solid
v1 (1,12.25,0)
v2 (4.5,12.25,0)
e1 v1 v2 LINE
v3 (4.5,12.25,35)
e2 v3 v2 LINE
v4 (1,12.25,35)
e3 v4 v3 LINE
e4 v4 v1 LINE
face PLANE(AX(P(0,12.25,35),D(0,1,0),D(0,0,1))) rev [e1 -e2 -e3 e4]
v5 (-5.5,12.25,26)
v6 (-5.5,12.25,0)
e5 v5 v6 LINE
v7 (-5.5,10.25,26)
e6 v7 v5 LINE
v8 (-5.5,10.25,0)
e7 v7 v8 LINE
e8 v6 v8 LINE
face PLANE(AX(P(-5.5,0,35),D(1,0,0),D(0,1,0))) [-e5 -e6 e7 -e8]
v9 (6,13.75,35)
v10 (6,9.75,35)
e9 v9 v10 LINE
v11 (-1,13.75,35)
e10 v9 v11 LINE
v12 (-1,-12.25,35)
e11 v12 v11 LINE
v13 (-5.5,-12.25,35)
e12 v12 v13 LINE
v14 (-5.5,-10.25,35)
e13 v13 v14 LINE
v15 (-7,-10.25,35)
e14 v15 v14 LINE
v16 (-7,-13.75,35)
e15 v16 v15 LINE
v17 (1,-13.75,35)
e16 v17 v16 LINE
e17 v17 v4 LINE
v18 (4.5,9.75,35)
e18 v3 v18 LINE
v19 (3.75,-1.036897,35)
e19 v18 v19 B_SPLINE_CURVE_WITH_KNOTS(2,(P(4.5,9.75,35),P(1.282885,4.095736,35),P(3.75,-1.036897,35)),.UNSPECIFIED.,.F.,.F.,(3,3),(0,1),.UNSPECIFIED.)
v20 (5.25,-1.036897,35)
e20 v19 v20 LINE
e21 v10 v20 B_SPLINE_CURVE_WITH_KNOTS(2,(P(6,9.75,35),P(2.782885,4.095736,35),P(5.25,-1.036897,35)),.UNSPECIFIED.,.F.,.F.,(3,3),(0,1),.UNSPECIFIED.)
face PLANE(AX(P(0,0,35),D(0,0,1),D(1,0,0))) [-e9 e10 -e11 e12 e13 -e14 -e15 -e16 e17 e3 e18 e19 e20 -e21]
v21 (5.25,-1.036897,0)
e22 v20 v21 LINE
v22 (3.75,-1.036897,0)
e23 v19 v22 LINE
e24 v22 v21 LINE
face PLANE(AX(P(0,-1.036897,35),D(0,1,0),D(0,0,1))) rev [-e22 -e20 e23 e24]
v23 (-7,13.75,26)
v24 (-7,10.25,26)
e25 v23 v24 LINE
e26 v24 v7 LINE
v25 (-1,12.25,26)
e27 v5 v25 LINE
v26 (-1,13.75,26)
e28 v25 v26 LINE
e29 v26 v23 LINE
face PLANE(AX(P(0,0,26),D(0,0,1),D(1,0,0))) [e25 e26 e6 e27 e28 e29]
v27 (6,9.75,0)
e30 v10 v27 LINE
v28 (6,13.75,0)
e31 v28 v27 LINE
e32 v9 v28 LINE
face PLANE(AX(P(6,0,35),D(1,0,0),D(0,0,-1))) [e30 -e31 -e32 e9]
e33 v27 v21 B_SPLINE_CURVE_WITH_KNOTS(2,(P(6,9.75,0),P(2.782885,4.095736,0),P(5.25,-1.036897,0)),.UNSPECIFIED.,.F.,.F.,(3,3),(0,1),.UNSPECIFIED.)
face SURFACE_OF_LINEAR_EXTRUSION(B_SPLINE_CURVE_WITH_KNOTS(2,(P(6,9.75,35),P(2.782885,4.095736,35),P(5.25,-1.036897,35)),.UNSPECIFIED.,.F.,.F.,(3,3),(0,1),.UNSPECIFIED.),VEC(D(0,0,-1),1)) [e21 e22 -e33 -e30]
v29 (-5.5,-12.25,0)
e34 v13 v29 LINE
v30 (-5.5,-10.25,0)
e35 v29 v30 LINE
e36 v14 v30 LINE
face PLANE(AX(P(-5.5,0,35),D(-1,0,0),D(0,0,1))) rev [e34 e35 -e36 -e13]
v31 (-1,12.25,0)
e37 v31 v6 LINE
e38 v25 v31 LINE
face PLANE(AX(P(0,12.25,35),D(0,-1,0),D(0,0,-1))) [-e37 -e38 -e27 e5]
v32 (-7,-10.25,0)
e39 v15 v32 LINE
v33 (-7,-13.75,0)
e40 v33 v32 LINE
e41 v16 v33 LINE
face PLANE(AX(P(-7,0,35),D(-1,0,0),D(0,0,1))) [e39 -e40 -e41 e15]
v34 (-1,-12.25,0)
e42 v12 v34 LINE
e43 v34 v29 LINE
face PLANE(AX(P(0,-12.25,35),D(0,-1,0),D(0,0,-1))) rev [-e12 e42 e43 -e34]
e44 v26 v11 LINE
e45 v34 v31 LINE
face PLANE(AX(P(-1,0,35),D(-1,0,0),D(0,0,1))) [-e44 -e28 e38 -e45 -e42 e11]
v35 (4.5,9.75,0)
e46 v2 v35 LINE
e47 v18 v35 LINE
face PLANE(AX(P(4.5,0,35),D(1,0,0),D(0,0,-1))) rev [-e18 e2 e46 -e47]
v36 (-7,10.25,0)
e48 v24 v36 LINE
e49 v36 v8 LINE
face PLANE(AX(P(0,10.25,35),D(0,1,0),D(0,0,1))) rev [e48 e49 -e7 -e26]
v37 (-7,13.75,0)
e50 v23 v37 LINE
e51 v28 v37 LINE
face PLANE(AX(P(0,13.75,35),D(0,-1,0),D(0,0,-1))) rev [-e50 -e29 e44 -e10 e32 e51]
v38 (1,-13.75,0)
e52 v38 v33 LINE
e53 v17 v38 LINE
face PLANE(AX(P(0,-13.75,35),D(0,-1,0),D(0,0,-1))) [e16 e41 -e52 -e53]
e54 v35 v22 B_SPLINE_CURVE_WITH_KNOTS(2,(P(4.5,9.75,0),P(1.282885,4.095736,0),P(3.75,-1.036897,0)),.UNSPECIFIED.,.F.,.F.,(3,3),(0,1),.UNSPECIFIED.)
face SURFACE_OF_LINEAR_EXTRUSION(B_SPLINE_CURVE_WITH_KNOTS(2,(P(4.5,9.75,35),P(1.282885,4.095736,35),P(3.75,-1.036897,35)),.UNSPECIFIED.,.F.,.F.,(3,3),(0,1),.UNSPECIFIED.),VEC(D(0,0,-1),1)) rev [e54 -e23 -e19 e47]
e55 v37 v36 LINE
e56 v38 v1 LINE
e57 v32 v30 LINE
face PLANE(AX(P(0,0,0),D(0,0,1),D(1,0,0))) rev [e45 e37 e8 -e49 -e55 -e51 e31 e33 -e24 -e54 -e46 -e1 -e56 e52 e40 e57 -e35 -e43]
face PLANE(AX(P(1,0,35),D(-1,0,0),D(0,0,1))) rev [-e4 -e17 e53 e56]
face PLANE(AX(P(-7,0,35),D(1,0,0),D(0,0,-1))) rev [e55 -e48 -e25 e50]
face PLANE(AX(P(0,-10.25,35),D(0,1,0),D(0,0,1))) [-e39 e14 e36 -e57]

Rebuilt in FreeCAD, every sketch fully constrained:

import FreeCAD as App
import Part
import Sketcher

V = App.Vector

doc = App.newDocument("Part")
body = doc.addObject("PartDesign::Body", "Body")

# Sketch on XY plane
sketch1 = body.newObject("Sketcher::SketchObject", "Sketch")
sketch1.AttachmentSupport = (doc.getObject("XY_Plane"), [""])
sketch1.MapMode = "FlatFace"
sketch1.addGeometry(Part.BSplineCurve([V(4.5, 9.75, 0), V(1.282885, 4.095736, 0), V(3.75, -1.036897, 0)], [3, 3], [0, 1], False, 2, [1, 1, 1], False), False)
sketch1.addGeometry(Part.LineSegment(V(3.75, -1.036897, 0), V(5.25, -1.036897, 0)), False)
sketch1.addGeometry(Part.BSplineCurve([V(6, 9.75, 0), V(2.782885, 4.095736, 0), V(5.25, -1.036897, 0)], [3, 3], [0, 1], False, 2, [1, 1, 1], False), False)
sketch1.addGeometry(Part.LineSegment(V(6, 9.75, 0), V(6, 13.75, 0)), False)
sketch1.addGeometry(Part.LineSegment(V(6, 13.75, 0), V(-7, 13.75, 0)), False)
sketch1.addGeometry(Part.LineSegment(V(-7, 13.75, 0), V(-7, 10.25, 0)), False)
sketch1.addGeometry(Part.LineSegment(V(-7, 10.25, 0), V(-5.5, 10.25, 0)), False)
sketch1.addGeometry(Part.LineSegment(V(-5.5, 10.25, 0), V(-5.5, 12.25, 0)), False)
sketch1.addGeometry(Part.LineSegment(V(-5.5, 12.25, 0), V(-1, 12.25, 0)), False)
sketch1.addGeometry(Part.LineSegment(V(-1, 12.25, 0), V(-1, -12.25, 0)), False)
sketch1.addGeometry(Part.LineSegment(V(-1, -12.25, 0), V(-5.5, -12.25, 0)), False)
sketch1.addGeometry(Part.LineSegment(V(-5.5, -12.25, 0), V(-5.5, -10.25, 0)), False)
sketch1.addGeometry(Part.LineSegment(V(-5.5, -10.25, 0), V(-7, -10.25, 0)), False)
sketch1.addGeometry(Part.LineSegment(V(-7, -10.25, 0), V(-7, -13.75, 0)), False)
sketch1.addGeometry(Part.LineSegment(V(-7, -13.75, 0), V(1, -13.75, 0)), False)
sketch1.addGeometry(Part.LineSegment(V(1, -13.75, 0), V(1, 12.25, 0)), False)
sketch1.addGeometry(Part.LineSegment(V(1, 12.25, 0), V(4.5, 12.25, 0)), False)
sketch1.addGeometry(Part.LineSegment(V(4.5, 12.25, 0), V(4.5, 9.75, 0)), False)
sketch1.addConstraint(Sketcher.Constraint("Block", 0))
sketch1.addConstraint(Sketcher.Constraint("Block", 2))
sketch1.addConstraint(Sketcher.Constraint("Coincident", 0, 2, 1, 1))
sketch1.addConstraint(Sketcher.Constraint("Coincident", 1, 2, 2, 2))
sketch1.addConstraint(Sketcher.Constraint("Coincident", 2, 1, 3, 1))
sketch1.addConstraint(Sketcher.Constraint("Coincident", 3, 2, 4, 1))
sketch1.addConstraint(Sketcher.Constraint("Coincident", 4, 2, 5, 1))
sketch1.addConstraint(Sketcher.Constraint("Coincident", 5, 2, 6, 1))
sketch1.addConstraint(Sketcher.Constraint("Coincident", 6, 2, 7, 1))
sketch1.addConstraint(Sketcher.Constraint("Coincident", 7, 2, 8, 1))
sketch1.addConstraint(Sketcher.Constraint("Coincident", 8, 2, 9, 1))
sketch1.addConstraint(Sketcher.Constraint("Coincident", 9, 2, 10, 1))
sketch1.addConstraint(Sketcher.Constraint("Coincident", 10, 2, 11, 1))
sketch1.addConstraint(Sketcher.Constraint("Coincident", 11, 2, 12, 1))
sketch1.addConstraint(Sketcher.Constraint("Coincident", 12, 2, 13, 1))
sketch1.addConstraint(Sketcher.Constraint("Coincident", 13, 2, 14, 1))
sketch1.addConstraint(Sketcher.Constraint("Coincident", 14, 2, 15, 1))
sketch1.addConstraint(Sketcher.Constraint("Coincident", 15, 2, 16, 1))
sketch1.addConstraint(Sketcher.Constraint("Coincident", 16, 2, 17, 1))
sketch1.addConstraint(Sketcher.Constraint("Coincident", 17, 2, 0, 1))
sketch1.addConstraint(Sketcher.Constraint("Vertical", 3))
sketch1.addConstraint(Sketcher.Constraint("Horizontal", 4))
sketch1.addConstraint(Sketcher.Constraint("Vertical", 5))
sketch1.addConstraint(Sketcher.Constraint("Horizontal", 6))
sketch1.addConstraint(Sketcher.Constraint("Vertical", 7))
sketch1.addConstraint(Sketcher.Constraint("Horizontal", 8))
sketch1.addConstraint(Sketcher.Constraint("Vertical", 9))
sketch1.addConstraint(Sketcher.Constraint("Horizontal", 10))
sketch1.addConstraint(Sketcher.Constraint("Vertical", 11))
sketch1.addConstraint(Sketcher.Constraint("Horizontal", 12))
sketch1.addConstraint(Sketcher.Constraint("Vertical", 13))
sketch1.addConstraint(Sketcher.Constraint("Horizontal", 14))
sketch1.addConstraint(Sketcher.Constraint("Vertical", 15))
sketch1.addConstraint(Sketcher.Constraint("Horizontal", 16))
sketch1.addConstraint(Sketcher.Constraint("Vertical", 17))
sketch1.addConstraint(Sketcher.Constraint("DistanceX", 4, 2, 4, 1, 13.0))
sketch1.addConstraint(Sketcher.Constraint("DistanceX", 14, 1, 14, 2, 8.0))
sketch1.addConstraint(Sketcher.Constraint("DistanceY", 3, 1, 3, 2, 4.0))
sketch1.addConstraint(Sketcher.Constraint("DistanceY", 7, 1, 7, 2, 2.0))
sketch1.addConstraint(Sketcher.Constraint("DistanceY", 11, 1, 11, 2, 2.0))
sketch1.addConstraint(Sketcher.Constraint("DistanceY", 15, 1, 15, 2, 26.0))
sketch1.addConstraint(Sketcher.Constraint("DistanceX", 6, 1, 6, 2, 1.5))
sketch1.addConstraint(Sketcher.Constraint("DistanceX", 8, 1, 8, 2, 4.5))
sketch1.addConstraint(Sketcher.Constraint("DistanceX", 10, 2, 10, 1, 4.5))
sketch1.addConstraint(Sketcher.Constraint("DistanceX", 12, 2, 12, 1, 1.5))
sketch1.addConstraint(Sketcher.Constraint("DistanceY", 5, 2, 5, 1, 3.5))
sketch1.addConstraint(Sketcher.Constraint("DistanceY", 9, 2, 9, 1, 24.5))
sketch1.addConstraint(Sketcher.Constraint("DistanceY", 13, 2, 13, 1, 3.5))
pad1 = body.newObject("PartDesign::Pad", "Pad")
pad1.Profile = sketch1
pad1.Length = 35

# Sketch on XY plane
sketch2 = body.newObject("Sketcher::SketchObject", "Sketch001")
sketch2.AttachmentSupport = (doc.getObject("XY_Plane"), [""])
sketch2.MapMode = "FlatFace"
sketch2.AttachmentOffset = App.Placement(V(0, 0, 35), App.Rotation())
sketch2.addGeometry(Part.LineSegment(V(-1, 12.2, 0), V(-1, 13.8, 0)), False)
sketch2.addGeometry(Part.LineSegment(V(-1, 13.8, 0), V(-7, 13.8, 0)), False)
sketch2.addGeometry(Part.LineSegment(V(-7, 13.8, 0), V(-7, 10.2, 0)), False)
sketch2.addGeometry(Part.LineSegment(V(-7, 10.2, 0), V(-5.5, 10.2, 0)), False)
sketch2.addGeometry(Part.LineSegment(V(-5.5, 10.2, 0), V(-5.5, 12.2, 0)), False)
sketch2.addGeometry(Part.LineSegment(V(-5.5, 12.2, 0), V(-1, 12.2, 0)), False)
sketch2.addConstraint(Sketcher.Constraint("Coincident", 0, 2, 1, 1))
sketch2.addConstraint(Sketcher.Constraint("Coincident", 1, 2, 2, 1))
sketch2.addConstraint(Sketcher.Constraint("Coincident", 2, 2, 3, 1))
sketch2.addConstraint(Sketcher.Constraint("Coincident", 3, 2, 4, 1))
sketch2.addConstraint(Sketcher.Constraint("Coincident", 4, 2, 5, 1))
sketch2.addConstraint(Sketcher.Constraint("Coincident", 5, 2, 0, 1))
sketch2.addConstraint(Sketcher.Constraint("Vertical", 0))
sketch2.addConstraint(Sketcher.Constraint("Horizontal", 1))
sketch2.addConstraint(Sketcher.Constraint("Vertical", 2))
sketch2.addConstraint(Sketcher.Constraint("Horizontal", 3))
sketch2.addConstraint(Sketcher.Constraint("Vertical", 4))
sketch2.addConstraint(Sketcher.Constraint("Horizontal", 5))
sketch2.addConstraint(Sketcher.Constraint("Equal", 3, 0))
sketch2.addConstraint(Sketcher.Constraint("DistanceX", 1, 2, 1, 1, 6.0))
sketch2.addConstraint(Sketcher.Constraint("DistanceY", 4, 1, 4, 2, 2.0))
sketch2.addConstraint(Sketcher.Constraint("DistanceX", 3, 1, 3, 2, 1.5))
sketch2.addConstraint(Sketcher.Constraint("DistanceX", 0, 2, -1, 1, 1.0))
sketch2.addConstraint(Sketcher.Constraint("DistanceY", -1, 1, 0, 2, 13.75))
pocket1 = body.newObject("PartDesign::Pocket", "Pocket")
pocket1.Profile = sketch2
pocket1.Length = 9

doc.recompute()
